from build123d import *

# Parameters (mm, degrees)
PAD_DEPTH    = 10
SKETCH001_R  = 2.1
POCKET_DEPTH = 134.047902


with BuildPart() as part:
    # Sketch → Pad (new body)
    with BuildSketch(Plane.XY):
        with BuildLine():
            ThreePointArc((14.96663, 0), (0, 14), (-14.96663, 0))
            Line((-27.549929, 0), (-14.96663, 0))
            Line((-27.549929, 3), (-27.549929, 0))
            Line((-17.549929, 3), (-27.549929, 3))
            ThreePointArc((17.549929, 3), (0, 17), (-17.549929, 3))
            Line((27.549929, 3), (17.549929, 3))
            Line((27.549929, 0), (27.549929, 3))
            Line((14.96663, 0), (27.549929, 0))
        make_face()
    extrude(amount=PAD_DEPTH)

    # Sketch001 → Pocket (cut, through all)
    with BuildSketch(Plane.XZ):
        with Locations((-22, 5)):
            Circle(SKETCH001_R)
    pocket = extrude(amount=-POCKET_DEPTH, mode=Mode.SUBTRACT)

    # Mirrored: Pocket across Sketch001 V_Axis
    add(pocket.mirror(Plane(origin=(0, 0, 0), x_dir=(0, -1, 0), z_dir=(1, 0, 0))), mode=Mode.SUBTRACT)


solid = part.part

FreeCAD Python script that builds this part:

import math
import FreeCAD as App
import Part
import Sketcher

V = App.Vector
Q = App.Units.Quantity

doc = App.newDocument("Part")
params = doc.addObject("Spreadsheet::Sheet", "Params")
for row, (alias, value) in enumerate([
    ("sketch1_radius", "15 mm"),
    ("sketch1_radius2", "18 mm"),
    ("sketch1_width", "10 mm"),
    ("sketch1_height", "3 mm"),
    ("pad1_length", "10 mm"),
    ("sketch2_diameter", "4.2 mm"),
], start=1):
    params.set(f"A{row}", alias)
    params.set(f"B{row}", "=" + value)
    params.setAlias(f"B{row}", alias)

body = doc.addObject("PartDesign::Body", "Body")

# Sketch on XY plane
sketch1 = body.newObject("Sketcher::SketchObject", "Sketch")
sketch1.AttachmentSupport = (doc.getObject("XY_Plane"), [""])
sketch1.MapMode = "FlatFace"
sketch1.addGeometry(Part.ArcOfCircle(Part.Circle(V(0, -1, 0), V(0, 0, 1), 15), math.radians(4), math.radians(176)), False)
sketch1.addGeometry(Part.LineSegment(V(15, 0, 0), V(27.5, 0, 0)), False)
sketch1.addGeometry(Part.LineSegment(V(27.5, 0, 0), V(27.5, 3, 0)), False)
sketch1.addGeometry(Part.LineSegment(V(27.5, 3, 0), V(17.5, 3, 0)), False)
sketch1.addGeometry(Part.ArcOfCircle(Part.Circle(V(0, -1, 0), V(0, 0, 1), 18), math.radians(13), math.radians(167)), False)
sketch1.addGeometry(Part.LineSegment(V(-17.5, 3, 0), V(-27.5, 3, 0)), False)
sketch1.addGeometry(Part.LineSegment(V(-27.5, 3, 0), V(-27.5, 0, 0)), False)
sketch1.addGeometry(Part.LineSegment(V(-27.5, 0, 0), V(-15, 0, 0)), False)
sketch1.addConstraint(Sketcher.Constraint("Coincident", 0, 1, 1, 1))
sketch1.addConstraint(Sketcher.Constraint("Coincident", 1, 2, 2, 1))
sketch1.addConstraint(Sketcher.Constraint("Coincident", 2, 2, 3, 1))
sketch1.addConstraint(Sketcher.Constraint("Coincident", 3, 2, 4, 1))
sketch1.addConstraint(Sketcher.Constraint("Coincident", 4, 2, 5, 1))
sketch1.addConstraint(Sketcher.Constraint("Coincident", 5, 2, 6, 1))
sketch1.addConstraint(Sketcher.Constraint("Coincident", 6, 2, 7, 1))
sketch1.addConstraint(Sketcher.Constraint("Coincident", 7, 2, 0, 2))
sketch1.addConstraint(Sketcher.Constraint("Horizontal", 1))
sketch1.addConstraint(Sketcher.Constraint("Vertical", 2))
sketch1.addConstraint(Sketcher.Constraint("Horizontal", 3))
sketch1.addConstraint(Sketcher.Constraint("Horizontal", 5))
sketch1.addConstraint(Sketcher.Constraint("Vertical", 6))
sketch1.addConstraint(Sketcher.Constraint("Horizontal", 7))
sketch1.addConstraint(Sketcher.Constraint("Coincident", 4, 3, 0, 3))
sketch1.addConstraint(Sketcher.Constraint("Symmetric", 1, 2, 6, 2, -1, 1))
sketch1.addConstraint(Sketcher.Constraint("Symmetric", 3, 2, 4, 2, -2))
sketch1.addConstraint(Sketcher.Constraint("PointOnObject", 0, 1, -1))
sketch1.addConstraint(Sketcher.Constraint("Radius", 0, Q("15 mm")))
sketch1.addConstraint(Sketcher.Constraint("Radius", 4, Q("18 mm")))
sketch1.addConstraint(Sketcher.Constraint("DistanceX", 3, 2, 3, 1, Q("10 mm")))
sketch1.addConstraint(Sketcher.Constraint("DistanceY", 2, 1, 2, 2, Q("3 mm")))
sketch1.addConstraint(Sketcher.Constraint("DistanceY", 0, 3, -1, 1, Q("1 mm")))
sketch1.setExpression("Constraints[18]", "Params.sketch1_radius")
sketch1.setExpression("Constraints[19]", "Params.sketch1_radius2")
sketch1.setExpression("Constraints[20]", "Params.sketch1_width")
sketch1.setExpression("Constraints[21]", "Params.sketch1_height")
pad1 = body.newObject("PartDesign::Pad", "Pad")
pad1.Profile = sketch1
pad1.setExpression("Length", "Params.pad1_length")

# Sketch on XZ plane
sketch2 = body.newObject("Sketcher::SketchObject", "Sketch001")
sketch2.AttachmentSupport = (doc.getObject("XZ_Plane"), [""])
sketch2.MapMode = "FlatFace"
sketch2.addGeometry(Part.Circle(V(-22, 5, 0), V(0, 0, 1), 2.1), False)
sketch2.addConstraint(Sketcher.Constraint("Diameter", 0, Q("4.2 mm")))
sketch2.addConstraint(Sketcher.Constraint("DistanceX", 0, 3, -1, 1, Q("22 mm")))
sketch2.addConstraint(Sketcher.Constraint("DistanceY", -1, 1, 0, 3, Q("5 mm")))
sketch2.setExpression("Constraints[0]", "Params.sketch2_diameter")
pocket1 = body.newObject("PartDesign::Pocket", "Pocket")
pocket1.Profile = sketch2
pocket1.Type = "ThroughAll"
doc.recompute()

mirrored = body.newObject("PartDesign::Mirrored", "Mirrored")
mirrored.Originals = [pocket1]
mirrored.MirrorPlane = (doc.getObject("YZ_Plane"), [""])
body.Tip = mirrored

doc.recompute()
